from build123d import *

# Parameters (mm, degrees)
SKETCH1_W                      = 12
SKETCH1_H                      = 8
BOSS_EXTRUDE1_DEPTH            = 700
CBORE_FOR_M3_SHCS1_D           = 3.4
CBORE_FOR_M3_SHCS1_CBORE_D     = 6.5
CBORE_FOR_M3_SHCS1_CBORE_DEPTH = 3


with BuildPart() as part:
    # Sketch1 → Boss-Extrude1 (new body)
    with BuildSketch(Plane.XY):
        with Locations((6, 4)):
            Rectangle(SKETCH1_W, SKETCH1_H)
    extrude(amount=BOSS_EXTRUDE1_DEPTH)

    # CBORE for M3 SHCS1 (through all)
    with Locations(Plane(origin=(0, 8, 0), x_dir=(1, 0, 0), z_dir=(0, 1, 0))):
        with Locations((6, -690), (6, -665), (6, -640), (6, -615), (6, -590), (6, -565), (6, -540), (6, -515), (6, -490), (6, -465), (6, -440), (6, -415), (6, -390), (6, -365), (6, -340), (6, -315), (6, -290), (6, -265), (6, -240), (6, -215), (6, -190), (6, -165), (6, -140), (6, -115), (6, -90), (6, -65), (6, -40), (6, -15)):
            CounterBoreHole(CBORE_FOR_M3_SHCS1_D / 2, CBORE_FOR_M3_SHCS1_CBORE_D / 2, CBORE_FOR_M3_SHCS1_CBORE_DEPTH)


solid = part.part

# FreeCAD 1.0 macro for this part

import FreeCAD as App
import Part
import Sketcher

doc = App.newDocument("Part")
body = doc.addObject("PartDesign::Body", "Body")

# Sketch on XY plane
sketch1 = body.newObject("Sketcher::SketchObject", "Sketch")
sketch1.AttachmentSupport = (doc.getObject("XY_Plane"), [""])
sketch1.MapMode = "FlatFace"
sketch1.addGeometry(Part.LineSegment(App.Vector(0, 8, 0), App.Vector(0, 0, 0)), False)
sketch1.addGeometry(Part.LineSegment(App.Vector(0, 0, 0), App.Vector(12, 0, 0)), False)
sketch1.addGeometry(Part.LineSegment(App.Vector(12, 0, 0), App.Vector(12, 8, 0)), False)
sketch1.addGeometry(Part.LineSegment(App.Vector(12, 8, 0), App.Vector(0, 8, 0)), False)
sketch1.addConstraint(Sketcher.Constraint("Coincident", 0, 2, 1, 1))
sketch1.addConstraint(Sketcher.Constraint("Coincident", 1, 2, 2, 1))
sketch1.addConstraint(Sketcher.Constraint("Coincident", 2, 2, 3, 1))
sketch1.addConstraint(Sketcher.Constraint("Coincident", 3, 2, 0, 1))
sketch1.addConstraint(Sketcher.Constraint("Vertical", 0))
sketch1.addConstraint(Sketcher.Constraint("Horizontal", 1))
sketch1.addConstraint(Sketcher.Constraint("Vertical", 2))
sketch1.addConstraint(Sketcher.Constraint("Horizontal", 3))
sketch1.addConstraint(Sketcher.Constraint("Coincident", 0, 2, -1, 1))
sketch1.addConstraint(Sketcher.Constraint("DistanceX", 1, 1, 1, 2, 12.0))
sketch1.addConstraint(Sketcher.Constraint("DistanceY", 0, 2, 0, 1, 8.0))
pad1 = body.newObject("PartDesign::Pad", "Pad")
pad1.Profile = sketch1
pad1.Length = 700

# Sketch on XZ plane
sketch2 = body.newObject("Sketcher::SketchObject", "Sketch001")
sketch2.AttachmentSupport = (doc.getObject("XZ_Plane"), [""])
sketch2.MapMode = "FlatFace"
sketch2.AttachmentOffset = App.Placement(App.Vector(0, 0, -8), App.Rotation())
sketch2.addGeometry(Part.Circle(App.Vector(6, 690, 0), App.Vector(0, 0, 1), 1.7), False)
sketch2.addGeometry(Part.Circle(App.Vector(6, 665, 0), App.Vector(0, 0, 1), 1.7), False)
sketch2.addGeometry(Part.Circle(App.Vector(6, 640, 0), App.Vector(0, 0, 1), 1.7), False)
sketch2.addGeometry(Part.Circle(App.Vector(6, 615, 0), App.Vector(0, 0, 1), 1.7), False)
sketch2.addGeometry(Part.Circle(App.Vector(6, 590, 0), App.Vector(0, 0, 1), 1.7), False)
sketch2.addGeometry(Part.Circle(App.Vector(6, 565, 0), App.Vector(0, 0, 1), 1.7), False)
sketch2.addGeometry(Part.Circle(App.Vector(6, 540, 0), App.Vector(0, 0, 1), 1.7), False)
sketch2.addGeometry(Part.Circle(App.Vector(6, 515, 0), App.Vector(0, 0, 1), 1.7), False)
sketch2.addGeometry(Part.Circle(App.Vector(6, 490, 0), App.Vector(0, 0, 1), 1.7), False)
sketch2.addGeometry(Part.Circle(App.Vector(6, 465, 0), App.Vector(0, 0, 1), 1.7), False)
sketch2.addGeometry(Part.Circle(App.Vector(6, 440, 0), App.Vector(0, 0, 1), 1.7), False)
sketch2.addGeometry(Part.Circle(App.Vector(6, 415, 0), App.Vector(0, 0, 1), 1.7), False)
sketch2.addGeometry(Part.Circle(App.Vector(6, 390, 0), App.Vector(0, 0, 1), 1.7), False)
sketch2.addGeometry(Part.Circle(App.Vector(6, 365, 0), App.Vector(0, 0, 1), 1.7), False)
sketch2.addGeometry(Part.Circle(App.Vector(6, 340, 0), App.Vector(0, 0, 1), 1.7), False)
sketch2.addGeometry(Part.Circle(App.Vector(6, 315, 0), App.Vector(0, 0, 1), 1.7), False)
sketch2.addGeometry(Part.Circle(App.Vector(6, 290, 0), App.Vector(0, 0, 1), 1.7), False)
sketch2.addGeometry(Part.Circle(App.Vector(6, 265, 0), App.Vector(0, 0, 1), 1.7), False)
sketch2.addGeometry(Part.Circle(App.Vector(6, 240, 0), App.Vector(0, 0, 1), 1.7), False)
sketch2.addGeometry(Part.Circle(App.Vector(6, 215, 0), App.Vector(0, 0, 1), 1.7), False)
sketch2.addGeometry(Part.Circle(App.Vector(6, 190, 0), App.Vector(0, 0, 1), 1.7), False)
sketch2.addGeometry(Part.Circle(App.Vector(6, 165, 0), App.Vector(0, 0, 1), 1.7), False)
sketch2.addGeometry(Part.Circle(App.Vector(6, 140, 0), App.Vector(0, 0, 1), 1.7), False)
sketch2.addGeometry(Part.Circle(App.Vector(6, 115, 0), App.Vector(0, 0, 1), 1.7), False)
sketch2.addGeometry(Part.Circle(App.Vector(6, 90, 0), App.Vector(0, 0, 1), 1.7), False)
sketch2.addGeometry(Part.Circle(App.Vector(6, 65, 0), App.Vector(0, 0, 1), 1.7), False)
sketch2.addGeometry(Part.Circle(App.Vector(6, 40, 0), App.Vector(0, 0, 1), 1.7), False)
sketch2.addGeometry(Part.Circle(App.Vector(6, 15, 0), App.Vector(0, 0, 1), 1.7), False)
sketch2.addConstraint(Sketcher.Constraint("Equal", 0, 1))
sketch2.addConstraint(Sketcher.Constraint("Equal", 1, 2))
sketch2.addConstraint(Sketcher.Constraint("Equal", 2, 3))
sketch2.addConstraint(Sketcher.Constraint("Equal", 3, 4))
sketch2.addConstraint(Sketcher.Constraint("Equal", 4, 5))
sketch2.addConstraint(Sketcher.Constraint("Equal", 5, 6))
sketch2.addConstraint(Sketcher.Constraint("Equal", 6, 7))
sketch2.addConstraint(Sketcher.Constraint("Equal", 7, 8))
sketch2.addConstraint(Sketcher.Constraint("Equal", 8, 9))
sketch2.addConstraint(Sketcher.Constraint("Equal", 9, 10))
sketch2.addConstraint(Sketcher.Constraint("Equal", 10, 11))
sketch2.addConstraint(Sketcher.Constraint("Equal", 11, 12))
sketch2.addConstraint(Sketcher.Constraint("Equal", 12, 13))
sketch2.addConstraint(Sketcher.Constraint("Equal", 13, 14))
sketch2.addConstraint(Sketcher.Constraint("Equal", 14, 15))
sketch2.addConstraint(Sketcher.Constraint("Equal", 15, 16))
sketch2.addConstraint(Sketcher.Constraint("Equal", 16, 17))
sketch2.addConstraint(Sketcher.Constraint("Equal", 17, 18))
sketch2.addConstraint(Sketcher.Constraint("Equal", 18, 19))
sketch2.addConstraint(Sketcher.Constraint("Equal", 19, 20))
sketch2.addConstraint(Sketcher.Constraint("Equal", 20, 21))
sketch2.addConstraint(Sketcher.Constraint("Equal", 21, 22))
sketch2.addConstraint(Sketcher.Constraint("Equal", 22, 23))
sketch2.addConstraint(Sketcher.Constraint("Equal", 23, 24))
sketch2.addConstraint(Sketcher.Constraint("Equal", 24, 25))
sketch2.addConstraint(Sketcher.Constraint("Equal", 25, 26))
sketch2.addConstraint(Sketcher.Constraint("Equal", 26, 27))
sketch2.addConstraint(Sketcher.Constraint("Vertical", 0, 3, 1, 3))
sketch2.addConstraint(Sketcher.Constraint("Vertical", 1, 3, 2, 3))
sketch2.addConstraint(Sketcher.Constraint("Vertical", 2, 3, 3, 3))
sketch2.addConstraint(Sketcher.Constraint("Vertical", 3, 3, 4, 3))
sketch2.addConstraint(Sketcher.Constraint("Vertical", 4, 3, 5, 3))
sketch2.addConstraint(Sketcher.Constraint("Vertical", 5, 3, 6, 3))
sketch2.addConstraint(Sketcher.Constraint("Vertical", 6, 3, 7, 3))
sketch2.addConstraint(Sketcher.Constraint("Vertical", 7, 3, 8, 3))
sketch2.addConstraint(Sketcher.Constraint("Vertical", 8, 3, 9, 3))
sketch2.addConstraint(Sketcher.Constraint("Vertical", 9, 3, 10, 3))
sketch2.addConstraint(Sketcher.Constraint("Vertical", 10, 3, 11, 3))
sketch2.addConstraint(Sketcher.Constraint("Vertical", 11, 3, 12, 3))
sketch2.addConstraint(Sketcher.Constraint("Vertical", 12, 3, 13, 3))
sketch2.addConstraint(Sketcher.Constraint("Vertical", 13, 3, 14, 3))
sketch2.addConstraint(Sketcher.Constraint("Vertical", 14, 3, 15, 3))
sketch2.addConstraint(Sketcher.Constraint("Vertical", 15, 3, 16, 3))
sketch2.addConstraint(Sketcher.Constraint("Vertical", 16, 3, 17, 3))
sketch2.addConstraint(Sketcher.Constraint("Vertical", 17, 3, 18, 3))
sketch2.addConstraint(Sketcher.Constraint("Vertical", 18, 3, 19, 3))
sketch2.addConstraint(Sketcher.Constraint("Vertical", 19, 3, 20, 3))
sketch2.addConstraint(Sketcher.Constraint("Vertical", 20, 3, 21, 3))
sketch2.addConstraint(Sketcher.Constraint("Vertical", 21, 3, 22, 3))
sketch2.addConstraint(Sketcher.Constraint("Vertical", 22, 3, 23, 3))
sketch2.addConstraint(Sketcher.Constraint("Vertical", 23, 3, 24, 3))
sketch2.addConstraint(Sketcher.Constraint("Vertical", 24, 3, 25, 3))
sketch2.addConstraint(Sketcher.Constraint("Vertical", 25, 3, 26, 3))
sketch2.addConstraint(Sketcher.Constraint("Vertical", 26, 3, 27, 3))
sketch2.addConstraint(Sketcher.Constraint("Diameter", 0, 3.4))
sketch2.addConstraint(Sketcher.Constraint("DistanceX", -1, 1, 0, 3, 6.0))
sketch2.addConstraint(Sketcher.Constraint("DistanceY", -1, 1, 0, 3, 690.0))
sketch2.addConstraint(Sketcher.Constraint("DistanceY", -1, 1, 1, 3, 665.0))
sketch2.addConstraint(Sketcher.Constraint("DistanceY", -1, 1, 2, 3, 640.0))
sketch2.addConstraint(Sketcher.Constraint("DistanceY", -1, 1, 3, 3, 615.0))
sketch2.addConstraint(Sketcher.Constraint("DistanceY", -1, 1, 4, 3, 590.0))
sketch2.addConstraint(Sketcher.Constraint("DistanceY", -1, 1, 5, 3, 565.0))
sketch2.addConstraint(Sketcher.Constraint("DistanceY", -1, 1, 6, 3, 540.0))
sketch2.addConstraint(Sketcher.Constraint("DistanceY", -1, 1, 7, 3, 515.0))
sketch2.addConstraint(Sketcher.Constraint("DistanceY", -1, 1, 8, 3, 490.0))
sketch2.addConstraint(Sketcher.Constraint("DistanceY", -1, 1, 9, 3, 465.0))
sketch2.addConstraint(Sketcher.Constraint("DistanceY", -1, 1, 10, 3, 440.0))
sketch2.addConstraint(Sketcher.Constraint("DistanceY", -1, 1, 11, 3, 415.0))
sketch2.addConstraint(Sketcher.Constraint("DistanceY", -1, 1, 12, 3, 390.0))
sketch2.addConstraint(Sketcher.Constraint("DistanceY", -1, 1, 13, 3, 365.0))
sketch2.addConstraint(Sketcher.Constraint("DistanceY", -1, 1, 14, 3, 340.0))
sketch2.addConstraint(Sketcher.Constraint("DistanceY", -1, 1, 15, 3, 315.0))
sketch2.addConstraint(Sketcher.Constraint("DistanceY", -1, 1, 16, 3, 290.0))
sketch2.addConstraint(Sketcher.Constraint("DistanceY", -1, 1, 17, 3, 265.0))
sketch2.addConstraint(Sketcher.Constraint("DistanceY", -1, 1, 18, 3, 240.0))
sketch2.addConstraint(Sketcher.Constraint("DistanceY", -1, 1, 19, 3, 215.0))
sketch2.addConstraint(Sketcher.Constraint("DistanceY", -1, 1, 20, 3, 190.0))
sketch2.addConstraint(Sketcher.Constraint("DistanceY", -1, 1, 21, 3, 165.0))
sketch2.addConstraint(Sketcher.Constraint("DistanceY", -1, 1, 22, 3, 140.0))
sketch2.addConstraint(Sketcher.Constraint("DistanceY", -1, 1, 23, 3, 115.0))
sketch2.addConstraint(Sketcher.Constraint("DistanceY", -1, 1, 24, 3, 90.0))
sketch2.addConstraint(Sketcher.Constraint("DistanceY", -1, 1, 25, 3, 65.0))
sketch2.addConstraint(Sketcher.Constraint("DistanceY", -1, 1, 26, 3, 40.0))
sketch2.addConstraint(Sketcher.Constraint("DistanceY", -1, 1, 27, 3, 15.0))
doc.recompute()
hole = body.newObject("PartDesign::Hole", "Hole")
hole.Profile = sketch2
hole.ThreadType = "None"
hole.Diameter = 3.4
hole.DepthType = "ThroughAll"
hole.HoleCutType = "Counterbore"
hole.HoleCutDiameter = 6.5
hole.HoleCutDepth = 3
hole.Reversed = True

doc.recompute()
